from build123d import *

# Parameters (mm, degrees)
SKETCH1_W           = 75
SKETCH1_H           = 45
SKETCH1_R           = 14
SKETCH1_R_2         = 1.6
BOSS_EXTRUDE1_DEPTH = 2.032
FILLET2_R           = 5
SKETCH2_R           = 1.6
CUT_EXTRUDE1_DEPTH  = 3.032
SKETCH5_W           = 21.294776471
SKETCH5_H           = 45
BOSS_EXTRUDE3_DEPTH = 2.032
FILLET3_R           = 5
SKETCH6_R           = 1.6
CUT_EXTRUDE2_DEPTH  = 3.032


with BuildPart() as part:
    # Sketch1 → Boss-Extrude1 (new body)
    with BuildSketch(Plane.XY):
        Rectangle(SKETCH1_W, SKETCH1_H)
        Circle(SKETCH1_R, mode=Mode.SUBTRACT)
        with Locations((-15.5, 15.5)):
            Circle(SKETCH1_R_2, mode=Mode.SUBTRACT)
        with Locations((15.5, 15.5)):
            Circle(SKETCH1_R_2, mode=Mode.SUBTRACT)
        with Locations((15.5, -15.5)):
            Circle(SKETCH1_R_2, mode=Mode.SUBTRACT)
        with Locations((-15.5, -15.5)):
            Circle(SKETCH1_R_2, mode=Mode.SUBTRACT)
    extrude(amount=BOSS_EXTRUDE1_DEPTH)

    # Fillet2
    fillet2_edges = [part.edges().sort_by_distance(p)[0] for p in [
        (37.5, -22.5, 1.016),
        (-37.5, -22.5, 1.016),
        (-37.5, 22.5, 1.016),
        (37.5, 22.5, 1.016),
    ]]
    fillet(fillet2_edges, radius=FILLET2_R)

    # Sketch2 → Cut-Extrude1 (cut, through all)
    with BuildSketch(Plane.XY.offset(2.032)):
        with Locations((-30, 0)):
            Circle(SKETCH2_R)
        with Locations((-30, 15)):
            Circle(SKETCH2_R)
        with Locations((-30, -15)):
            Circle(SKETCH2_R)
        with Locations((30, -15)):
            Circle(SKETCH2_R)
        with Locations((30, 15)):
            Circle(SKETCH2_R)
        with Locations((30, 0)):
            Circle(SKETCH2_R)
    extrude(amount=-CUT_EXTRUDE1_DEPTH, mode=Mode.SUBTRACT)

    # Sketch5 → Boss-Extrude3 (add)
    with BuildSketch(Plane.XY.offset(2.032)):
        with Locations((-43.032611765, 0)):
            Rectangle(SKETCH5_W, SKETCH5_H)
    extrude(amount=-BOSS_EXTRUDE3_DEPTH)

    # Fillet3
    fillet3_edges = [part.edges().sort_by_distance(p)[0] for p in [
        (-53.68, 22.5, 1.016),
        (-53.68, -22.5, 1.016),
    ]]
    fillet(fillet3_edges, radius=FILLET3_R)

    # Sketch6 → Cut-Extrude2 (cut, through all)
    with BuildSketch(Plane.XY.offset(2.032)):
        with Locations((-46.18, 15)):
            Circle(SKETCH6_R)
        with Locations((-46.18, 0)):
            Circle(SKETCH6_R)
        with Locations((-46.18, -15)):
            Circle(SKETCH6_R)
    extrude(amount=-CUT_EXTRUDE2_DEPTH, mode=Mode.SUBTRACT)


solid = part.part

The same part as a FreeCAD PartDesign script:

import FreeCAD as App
import Part
import Sketcher
from FreeCAD import Vector
Q = App.Units.Quantity


def edges_at(feature, points):
    """Names of the edges that pass closest to the given points."""
    edges = feature.Shape.Edges
    near = lambda p: min(range(len(edges)), key=lambda i: edges[i].distToShape(Part.Vertex(*p))[0])
    return sorted({f"Edge{near(p) + 1}" for p in points})


def add_polygon(sketch, points):
    """Adds a closed chain of lines whose ends are joined by coincident constraints."""
    first, n = sketch.GeometryCount, len(points)
    for a, b in zip(points, points[1:] + points[:1]):
        sketch.addGeometry(Part.LineSegment(App.Vector(*a, 0), App.Vector(*b, 0)), False)
    for i in range(n):
        sketch.addConstraint(Sketcher.Constraint("Coincident", first + i, 2, first + (i + 1) % n, 1))

doc = App.newDocument("Part")
body = doc.addObject("PartDesign::Body", "Body")

sketch1 = body.newObject("Sketcher::SketchObject", "Sketch")
sketch1.AttachmentSupport = (doc.getObject("XY_Plane"), [""])
sketch1.MapMode = "FlatFace"
add_polygon(sketch1, [(-37.5, 22.5), (-37.5, -22.5), (37.5, -22.5), (37.5, 22.5)])
sketch1.addGeometry(Part.Circle(Vector(-15.5, -15.5, 0), Vector(0, 0, 1), 1.6), False)
sketch1.addGeometry(Part.Circle(Vector(15.5, -15.5, 0), Vector(0, 0, 1), 1.6), False)
sketch1.addGeometry(Part.Circle(Vector(-15.5, 15.5, 0), Vector(0, 0, 1), 1.6), False)
sketch1.addGeometry(Part.Circle(Vector(0, 0, 0), Vector(0, 0, 1), 14), False)
sketch1.addGeometry(Part.Circle(Vector(15.5, 15.5, 0), Vector(0, 0, 1), 1.6), False)
sketch1.addConstraint([
    Sketcher.Constraint("Vertical", 0),
    Sketcher.Constraint("Horizontal", 1),
    Sketcher.Constraint("Vertical", 2),
    Sketcher.Constraint("Horizontal", 3),
    Sketcher.Constraint("Coincident", 7, 3, -1, 1),
    Sketcher.Constraint("Equal", 4, 5),
    Sketcher.Constraint("Equal", 5, 6),
    Sketcher.Constraint("Equal", 6, 8),
    Sketcher.Constraint("Symmetric", 5, 3, 6, 3, -1, 1),
    Sketcher.Constraint("Symmetric", 4, 3, 8, 3, -1, 1),
    Sketcher.Constraint("Symmetric", 0, 2, 2, 2, -1, 1),
    Sketcher.Constraint("Symmetric", 4, 3, 5, 3, -2),
    Sketcher.Constraint("Diameter", 7, Q("28 mm")),
    Sketcher.Constraint("Diameter", 4, Q("3.2 mm")),
    Sketcher.Constraint("DistanceX", 1, 1, 1, 2, Q("75 mm")),
    Sketcher.Constraint("DistanceY", 0, 2, 0, 1, Q("45 mm")),
    Sketcher.Constraint("DistanceX", 4, 3, 5, 3, Q("31 mm")),
    Sketcher.Constraint("DistanceY", 4, 3, 6, 3, Q("31 mm")),
])
pad1 = body.newObject("PartDesign::Pad", "Pad")
pad1.Profile = sketch1
pad1.Length = 2.032
doc.recompute()

fillet = body.newObject("PartDesign::Fillet", "Fillet")
fillet.Base = (pad1, edges_at(pad1, [
    (37.5, -22.5, 1.016),
    (-37.5, -22.5, 1.016),
    (-37.5, 22.5, 1.016),
    (37.5, 22.5, 1.016),
]))
fillet.Radius = 5

sketch2 = body.newObject("Sketcher::SketchObject", "Sketch001")
sketch2.AttachmentSupport = (doc.getObject("XY_Plane"), [""])
sketch2.MapMode = "FlatFace"
sketch2.AttachmentOffset = App.Placement(Vector(0, 0, 2.032), App.Rotation())
sketch2.addGeometry([
    Part.Circle(Vector(-30, 0, 0), Vector(0, 0, 1), 1.6),
    Part.Circle(Vector(-30, 15, 0), Vector(0, 0, 1), 1.6),
    Part.Circle(Vector(-30, -15, 0), Vector(0, 0, 1), 1.6),
    Part.Circle(Vector(30, -15, 0), Vector(0, 0, 1), 1.6),
    Part.Circle(Vector(30, 15, 0), Vector(0, 0, 1), 1.6),
    Part.Circle(Vector(30, 0, 0), Vector(0, 0, 1), 1.6),
], False)
sketch2.addConstraint([
    Sketcher.Constraint("Equal", 0, 1),
    Sketcher.Constraint("Equal", 1, 2),
    Sketcher.Constraint("Equal", 2, 3),
    Sketcher.Constraint("Equal", 3, 4),
    Sketcher.Constraint("Equal", 4, 5),
    Sketcher.Constraint("Symmetric", 1, 3, 3, 3, -1, 1),
    Sketcher.Constraint("Symmetric", 2, 3, 4, 3, -1, 1),
    Sketcher.Constraint("Symmetric", 0, 3, 5, 3, -1, 1),
    Sketcher.Constraint("Symmetric", 2, 3, 3, 3, -2),
    Sketcher.Constraint("PointOnObject", 0, 3, -1),
    Sketcher.Constraint("Vertical", 0, 3, 1, 3),
    Sketcher.Constraint("Diameter", 0, Q("3.2 mm")),
    Sketcher.Constraint("DistanceX", 0, 3, -1, 1, Q("30 mm")),
    Sketcher.Constraint("DistanceY", -1, 1, 1, 3, Q("15 mm")),
])
pocket1 = body.newObject("PartDesign::Pocket", "Pocket")
pocket1.Profile = sketch2
pocket1.Type = "ThroughAll"

sketch3 = body.newObject("Sketcher::SketchObject", "Sketch002")
sketch3.AttachmentSupport = (doc.getObject("XY_Plane"), [""])
sketch3.MapMode = "FlatFace"
sketch3.AttachmentOffset = App.Placement(Vector(0, 0, 2.032), App.Rotation())
add_polygon(sketch3, [(-54, 22), (-54, -22), (-32, -22), (-32, 22)])
sketch3.addConstraint([
    Sketcher.Constraint("Vertical", 0),
    Sketcher.Constraint("Horizontal", 1),
    Sketcher.Constraint("Vertical", 2),
    Sketcher.Constraint("Horizontal", 3),
    Sketcher.Constraint("DistanceY", 0, 2, 0, 1, Q("45 mm")),
    Sketcher.Constraint("DistanceY", 0, 2, -1, 1, Q("22.5 mm")),
    Sketcher.Constraint("DistanceX", 0, 2, -1, 1, Q("53.68 mm")),
    Sketcher.Constraint("DistanceX", 1, 1, 1, 2, Q("21.294776 mm")),
])
pad2 = body.newObject("PartDesign::Pad", "Pad001")
pad2.Profile = sketch3
pad2.Length = 2.032
pad2.Reversed = True
doc.recompute()

fillet2 = body.newObject("PartDesign::Fillet", "Fillet001")
fillet2.Base = (pad2, edges_at(pad2, [(-53.68, 22.5, 1.016), (-53.68, -22.5, 1.016)]))
fillet2.Radius = 5

sketch4 = body.newObject("Sketcher::SketchObject", "Sketch003")
sketch4.AttachmentSupport = (doc.getObject("XY_Plane"), [""])
sketch4.MapMode = "FlatFace"
sketch4.AttachmentOffset = App.Placement(Vector(0, 0, 2.032), App.Rotation())
sketch4.addGeometry([
    Part.Circle(Vector(-46.2, 15, 0), Vector(0, 0, 1), 1.6),
    Part.Circle(Vector(-46.2, 0, 0), Vector(0, 0, 1), 1.6),
    Part.Circle(Vector(-46.2, -15, 0), Vector(0, 0, 1), 1.6),
], False)
sketch4.addConstraint([
    Sketcher.Constraint("Equal", 0, 1),
    Sketcher.Constraint("Equal", 1, 2),
    Sketcher.Constraint("Symmetric", 0, 3, 2, 3, -1),
    Sketcher.Constraint("PointOnObject", 1, 3, -1),
    Sketcher.Constraint("Vertical", 0, 3, 1, 3),
    Sketcher.Constraint("Diameter", 0, Q("3.2 mm")),
    Sketcher.Constraint("DistanceY", -1, 1, 0, 3, Q("15 mm")),
    Sketcher.Constraint("DistanceX", 0, 3, -1, 1, Q("46.18 mm")),
])
pocket2 = body.newObject("PartDesign::Pocket", "Pocket001")
pocket2.Profile = sketch4
pocket2.Type = "ThroughAll"

doc.recompute()
